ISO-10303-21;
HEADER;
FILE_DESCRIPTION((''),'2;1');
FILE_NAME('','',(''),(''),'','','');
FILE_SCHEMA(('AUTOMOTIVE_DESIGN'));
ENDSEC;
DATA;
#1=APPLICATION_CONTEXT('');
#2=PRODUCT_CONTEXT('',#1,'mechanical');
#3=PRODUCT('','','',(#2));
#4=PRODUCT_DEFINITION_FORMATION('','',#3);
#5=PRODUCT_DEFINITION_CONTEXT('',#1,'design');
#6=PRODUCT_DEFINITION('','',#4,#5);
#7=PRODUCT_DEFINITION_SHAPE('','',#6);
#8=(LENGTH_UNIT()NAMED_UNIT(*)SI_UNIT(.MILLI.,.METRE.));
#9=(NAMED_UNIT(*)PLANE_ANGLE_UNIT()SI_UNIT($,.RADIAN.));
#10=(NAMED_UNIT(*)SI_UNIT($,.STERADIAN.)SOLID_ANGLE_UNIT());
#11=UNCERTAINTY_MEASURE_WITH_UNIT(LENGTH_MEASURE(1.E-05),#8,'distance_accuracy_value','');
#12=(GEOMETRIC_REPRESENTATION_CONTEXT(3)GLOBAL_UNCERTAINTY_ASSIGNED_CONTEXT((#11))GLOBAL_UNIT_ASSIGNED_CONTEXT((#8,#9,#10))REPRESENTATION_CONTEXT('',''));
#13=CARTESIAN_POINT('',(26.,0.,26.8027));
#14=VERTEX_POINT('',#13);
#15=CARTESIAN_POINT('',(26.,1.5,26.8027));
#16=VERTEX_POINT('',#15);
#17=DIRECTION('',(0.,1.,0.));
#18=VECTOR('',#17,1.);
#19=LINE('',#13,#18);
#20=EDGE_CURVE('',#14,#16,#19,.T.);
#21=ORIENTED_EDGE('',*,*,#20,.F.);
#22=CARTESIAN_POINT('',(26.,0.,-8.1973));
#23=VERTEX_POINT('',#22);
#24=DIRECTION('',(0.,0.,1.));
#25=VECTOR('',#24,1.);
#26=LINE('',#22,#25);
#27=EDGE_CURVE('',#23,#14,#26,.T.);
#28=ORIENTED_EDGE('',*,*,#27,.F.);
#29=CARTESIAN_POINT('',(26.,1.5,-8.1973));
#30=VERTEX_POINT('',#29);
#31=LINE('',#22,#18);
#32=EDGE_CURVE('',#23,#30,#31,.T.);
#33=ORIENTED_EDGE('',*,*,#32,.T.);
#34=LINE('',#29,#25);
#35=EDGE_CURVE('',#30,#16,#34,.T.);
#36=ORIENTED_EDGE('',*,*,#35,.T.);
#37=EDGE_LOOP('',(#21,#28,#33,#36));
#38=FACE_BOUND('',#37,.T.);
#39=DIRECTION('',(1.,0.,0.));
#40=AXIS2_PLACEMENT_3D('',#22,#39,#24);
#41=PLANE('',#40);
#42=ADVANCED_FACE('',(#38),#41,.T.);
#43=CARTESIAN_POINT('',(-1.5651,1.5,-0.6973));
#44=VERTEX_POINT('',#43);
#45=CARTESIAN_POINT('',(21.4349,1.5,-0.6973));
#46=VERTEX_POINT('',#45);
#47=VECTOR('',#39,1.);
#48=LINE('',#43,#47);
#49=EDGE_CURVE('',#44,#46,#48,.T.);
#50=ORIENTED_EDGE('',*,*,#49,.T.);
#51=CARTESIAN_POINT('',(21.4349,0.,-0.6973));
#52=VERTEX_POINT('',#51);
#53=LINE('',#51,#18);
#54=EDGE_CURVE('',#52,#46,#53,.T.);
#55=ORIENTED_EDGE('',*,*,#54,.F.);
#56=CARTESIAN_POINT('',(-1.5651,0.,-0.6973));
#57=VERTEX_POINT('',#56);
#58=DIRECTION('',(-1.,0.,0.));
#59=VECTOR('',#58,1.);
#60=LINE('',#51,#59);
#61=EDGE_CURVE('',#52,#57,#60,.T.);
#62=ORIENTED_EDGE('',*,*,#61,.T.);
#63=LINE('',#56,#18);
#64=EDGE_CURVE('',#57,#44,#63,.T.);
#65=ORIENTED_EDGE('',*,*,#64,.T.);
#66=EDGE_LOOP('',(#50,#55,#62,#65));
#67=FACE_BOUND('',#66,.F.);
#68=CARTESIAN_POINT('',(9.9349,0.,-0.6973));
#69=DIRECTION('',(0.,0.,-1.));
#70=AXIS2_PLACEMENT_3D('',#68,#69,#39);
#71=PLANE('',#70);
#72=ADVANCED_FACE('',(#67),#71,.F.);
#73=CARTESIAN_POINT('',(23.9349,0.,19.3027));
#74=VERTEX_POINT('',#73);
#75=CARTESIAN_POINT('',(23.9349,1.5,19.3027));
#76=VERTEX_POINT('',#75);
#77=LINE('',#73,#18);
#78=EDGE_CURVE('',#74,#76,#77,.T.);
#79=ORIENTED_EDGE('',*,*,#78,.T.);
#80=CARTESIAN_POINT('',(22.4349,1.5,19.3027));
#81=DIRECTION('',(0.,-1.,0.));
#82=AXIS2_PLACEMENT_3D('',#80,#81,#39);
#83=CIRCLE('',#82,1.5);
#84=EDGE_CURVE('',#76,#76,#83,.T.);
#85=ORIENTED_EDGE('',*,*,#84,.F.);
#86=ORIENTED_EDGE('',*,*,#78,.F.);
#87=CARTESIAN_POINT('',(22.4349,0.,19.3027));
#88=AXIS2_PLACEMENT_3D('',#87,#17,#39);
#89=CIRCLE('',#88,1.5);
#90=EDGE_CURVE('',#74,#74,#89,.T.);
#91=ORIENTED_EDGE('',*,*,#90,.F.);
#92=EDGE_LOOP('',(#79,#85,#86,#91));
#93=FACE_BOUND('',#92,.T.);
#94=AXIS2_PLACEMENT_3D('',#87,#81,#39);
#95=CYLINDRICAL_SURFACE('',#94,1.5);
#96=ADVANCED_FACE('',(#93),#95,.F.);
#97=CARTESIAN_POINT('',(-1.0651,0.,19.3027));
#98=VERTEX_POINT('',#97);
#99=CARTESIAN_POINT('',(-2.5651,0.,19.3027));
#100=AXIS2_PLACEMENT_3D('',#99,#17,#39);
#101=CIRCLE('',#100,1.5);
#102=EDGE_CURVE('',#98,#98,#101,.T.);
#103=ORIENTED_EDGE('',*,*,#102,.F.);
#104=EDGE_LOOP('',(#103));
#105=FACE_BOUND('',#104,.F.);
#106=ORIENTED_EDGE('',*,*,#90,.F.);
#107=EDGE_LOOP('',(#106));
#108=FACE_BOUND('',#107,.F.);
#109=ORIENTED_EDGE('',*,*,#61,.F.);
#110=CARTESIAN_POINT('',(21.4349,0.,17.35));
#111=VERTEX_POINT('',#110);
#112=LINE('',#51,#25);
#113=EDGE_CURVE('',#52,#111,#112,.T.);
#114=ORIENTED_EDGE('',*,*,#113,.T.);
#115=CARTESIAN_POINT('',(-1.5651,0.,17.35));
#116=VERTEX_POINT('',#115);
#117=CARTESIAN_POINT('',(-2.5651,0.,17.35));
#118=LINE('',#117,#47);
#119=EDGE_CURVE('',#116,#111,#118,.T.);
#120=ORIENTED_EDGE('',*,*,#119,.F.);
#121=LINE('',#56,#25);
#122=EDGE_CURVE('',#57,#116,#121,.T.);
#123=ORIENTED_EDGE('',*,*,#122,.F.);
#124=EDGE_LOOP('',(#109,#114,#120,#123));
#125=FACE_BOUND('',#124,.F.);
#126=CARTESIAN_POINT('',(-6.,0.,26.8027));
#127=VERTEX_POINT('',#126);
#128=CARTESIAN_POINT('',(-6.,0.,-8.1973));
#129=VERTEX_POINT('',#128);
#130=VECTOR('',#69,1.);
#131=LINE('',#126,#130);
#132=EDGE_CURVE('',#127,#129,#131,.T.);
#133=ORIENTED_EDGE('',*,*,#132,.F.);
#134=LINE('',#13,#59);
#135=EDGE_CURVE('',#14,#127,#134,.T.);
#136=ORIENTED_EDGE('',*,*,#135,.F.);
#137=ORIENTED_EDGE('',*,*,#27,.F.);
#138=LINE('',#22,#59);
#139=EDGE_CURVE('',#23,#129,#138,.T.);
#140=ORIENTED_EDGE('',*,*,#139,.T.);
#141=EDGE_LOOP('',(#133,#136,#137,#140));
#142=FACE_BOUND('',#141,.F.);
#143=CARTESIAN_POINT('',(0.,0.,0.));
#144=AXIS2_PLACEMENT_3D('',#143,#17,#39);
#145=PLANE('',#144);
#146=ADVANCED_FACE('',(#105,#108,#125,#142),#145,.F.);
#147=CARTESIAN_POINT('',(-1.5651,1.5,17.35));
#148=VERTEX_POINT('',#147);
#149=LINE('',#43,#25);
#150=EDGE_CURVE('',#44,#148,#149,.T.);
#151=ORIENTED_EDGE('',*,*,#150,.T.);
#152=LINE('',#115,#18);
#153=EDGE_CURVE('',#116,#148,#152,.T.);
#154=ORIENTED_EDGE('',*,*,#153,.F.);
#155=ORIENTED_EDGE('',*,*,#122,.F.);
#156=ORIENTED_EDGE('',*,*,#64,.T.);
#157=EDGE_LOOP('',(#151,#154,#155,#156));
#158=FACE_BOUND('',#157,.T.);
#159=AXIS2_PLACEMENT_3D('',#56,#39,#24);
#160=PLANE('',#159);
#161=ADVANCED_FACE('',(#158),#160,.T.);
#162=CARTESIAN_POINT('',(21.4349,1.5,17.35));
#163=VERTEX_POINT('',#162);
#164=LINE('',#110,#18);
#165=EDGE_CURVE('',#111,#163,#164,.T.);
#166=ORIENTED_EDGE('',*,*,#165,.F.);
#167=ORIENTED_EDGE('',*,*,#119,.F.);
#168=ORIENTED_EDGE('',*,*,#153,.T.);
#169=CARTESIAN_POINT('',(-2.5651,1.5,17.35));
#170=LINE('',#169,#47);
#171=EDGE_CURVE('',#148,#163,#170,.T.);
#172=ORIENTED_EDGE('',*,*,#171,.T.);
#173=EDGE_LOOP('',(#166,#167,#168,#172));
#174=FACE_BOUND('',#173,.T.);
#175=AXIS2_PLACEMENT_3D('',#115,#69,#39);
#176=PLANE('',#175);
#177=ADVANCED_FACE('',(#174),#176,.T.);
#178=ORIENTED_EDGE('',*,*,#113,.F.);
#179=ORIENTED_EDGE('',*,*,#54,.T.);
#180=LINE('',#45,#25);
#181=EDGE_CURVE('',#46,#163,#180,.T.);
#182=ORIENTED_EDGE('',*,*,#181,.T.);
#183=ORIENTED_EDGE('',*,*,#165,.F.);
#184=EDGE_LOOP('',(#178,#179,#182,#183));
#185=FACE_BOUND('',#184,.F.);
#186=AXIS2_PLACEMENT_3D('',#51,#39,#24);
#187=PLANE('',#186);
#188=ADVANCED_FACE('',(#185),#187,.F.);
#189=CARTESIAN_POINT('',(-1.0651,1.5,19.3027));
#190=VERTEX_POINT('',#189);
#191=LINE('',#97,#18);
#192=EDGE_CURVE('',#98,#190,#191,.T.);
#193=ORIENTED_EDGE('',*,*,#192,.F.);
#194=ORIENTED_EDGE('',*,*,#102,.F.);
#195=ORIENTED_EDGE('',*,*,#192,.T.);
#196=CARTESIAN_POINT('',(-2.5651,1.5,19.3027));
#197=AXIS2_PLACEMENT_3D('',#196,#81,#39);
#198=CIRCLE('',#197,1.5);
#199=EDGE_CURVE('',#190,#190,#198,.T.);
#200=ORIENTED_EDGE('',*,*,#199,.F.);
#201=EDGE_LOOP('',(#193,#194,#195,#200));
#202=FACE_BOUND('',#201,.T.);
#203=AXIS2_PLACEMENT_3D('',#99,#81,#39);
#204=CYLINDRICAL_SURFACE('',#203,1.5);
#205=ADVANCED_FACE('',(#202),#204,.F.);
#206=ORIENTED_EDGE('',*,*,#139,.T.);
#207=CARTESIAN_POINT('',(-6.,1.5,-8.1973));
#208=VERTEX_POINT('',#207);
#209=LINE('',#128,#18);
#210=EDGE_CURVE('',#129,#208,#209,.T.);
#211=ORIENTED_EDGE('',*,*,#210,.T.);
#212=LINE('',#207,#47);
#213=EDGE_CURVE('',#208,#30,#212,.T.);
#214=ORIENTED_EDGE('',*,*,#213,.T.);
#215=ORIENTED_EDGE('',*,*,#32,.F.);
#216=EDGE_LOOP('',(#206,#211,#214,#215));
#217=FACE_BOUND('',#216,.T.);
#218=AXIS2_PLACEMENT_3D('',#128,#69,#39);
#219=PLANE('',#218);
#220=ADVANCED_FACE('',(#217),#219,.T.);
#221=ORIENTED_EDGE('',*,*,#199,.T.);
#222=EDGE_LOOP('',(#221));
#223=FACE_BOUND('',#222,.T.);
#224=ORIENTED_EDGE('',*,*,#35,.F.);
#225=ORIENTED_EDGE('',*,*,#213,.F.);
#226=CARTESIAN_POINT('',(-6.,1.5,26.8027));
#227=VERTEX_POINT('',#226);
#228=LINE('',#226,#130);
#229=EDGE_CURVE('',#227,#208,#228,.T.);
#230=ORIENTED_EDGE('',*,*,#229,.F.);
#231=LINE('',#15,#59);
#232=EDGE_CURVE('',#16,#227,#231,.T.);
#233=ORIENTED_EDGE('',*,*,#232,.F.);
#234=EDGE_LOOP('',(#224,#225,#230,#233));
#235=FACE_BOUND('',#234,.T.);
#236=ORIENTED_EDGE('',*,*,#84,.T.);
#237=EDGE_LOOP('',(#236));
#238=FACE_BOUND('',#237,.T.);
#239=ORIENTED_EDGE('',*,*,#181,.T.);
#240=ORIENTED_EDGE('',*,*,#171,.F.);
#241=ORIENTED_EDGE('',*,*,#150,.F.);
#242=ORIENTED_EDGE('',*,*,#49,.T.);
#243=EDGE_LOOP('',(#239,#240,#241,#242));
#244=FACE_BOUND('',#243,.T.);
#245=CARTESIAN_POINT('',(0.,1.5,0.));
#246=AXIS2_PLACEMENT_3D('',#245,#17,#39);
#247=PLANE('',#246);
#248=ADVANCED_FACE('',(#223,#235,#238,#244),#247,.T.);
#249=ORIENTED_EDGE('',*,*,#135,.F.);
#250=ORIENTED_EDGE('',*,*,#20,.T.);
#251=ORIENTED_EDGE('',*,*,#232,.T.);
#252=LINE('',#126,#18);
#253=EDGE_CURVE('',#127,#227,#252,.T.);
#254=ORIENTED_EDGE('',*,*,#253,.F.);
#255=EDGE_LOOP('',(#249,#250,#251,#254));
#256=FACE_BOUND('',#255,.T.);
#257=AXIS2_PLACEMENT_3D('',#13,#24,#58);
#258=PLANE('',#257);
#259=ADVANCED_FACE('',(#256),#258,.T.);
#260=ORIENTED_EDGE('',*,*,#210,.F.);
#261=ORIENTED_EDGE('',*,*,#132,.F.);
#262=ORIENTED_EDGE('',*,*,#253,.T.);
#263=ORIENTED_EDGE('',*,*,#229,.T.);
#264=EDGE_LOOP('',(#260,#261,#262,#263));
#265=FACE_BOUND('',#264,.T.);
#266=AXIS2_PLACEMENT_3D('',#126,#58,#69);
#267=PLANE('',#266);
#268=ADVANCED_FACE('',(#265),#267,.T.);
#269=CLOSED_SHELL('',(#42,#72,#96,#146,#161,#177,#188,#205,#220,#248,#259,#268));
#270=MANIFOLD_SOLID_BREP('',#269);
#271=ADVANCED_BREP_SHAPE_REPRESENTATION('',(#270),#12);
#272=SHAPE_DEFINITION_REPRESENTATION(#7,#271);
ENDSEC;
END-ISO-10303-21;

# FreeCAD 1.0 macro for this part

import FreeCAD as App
import Part
import Sketcher

V = App.Vector

doc = App.newDocument("Part")
params = doc.addObject("Spreadsheet::Sheet", "Params")
for row, (alias, value) in enumerate([
    ("sketch1_diameter", "3 mm"),
    ("sketch1_width", "32 mm"),
    ("sketch1_height", "35 mm"),
    ("sketch1_width2", "23 mm"),
    ("pad1_length", "1.5 mm"),
], start=1):
    params.set(f"A{row}", alias)
    params.set(f"B{row}", "=" + value)
    params.setAlias(f"B{row}", alias)

body = doc.addObject("PartDesign::Body", "Body")

# Sketch on XZ plane
sketch1 = body.newObject("Sketcher::SketchObject", "Sketch")
sketch1.AttachmentSupport = (doc.getObject("XZ_Plane"), [""])
sketch1.MapMode = "FlatFace"
sketch1.addGeometry([
    Part.LineSegment(V(-6, -8.2, 0), V(-6, 26.8, 0)),  # 0
    Part.LineSegment(V(-6, 26.8, 0), V(26, 26.8, 0)),  # 1
    Part.LineSegment(V(26, 26.8, 0), V(26, -8.2, 0)),  # 2
    Part.LineSegment(V(26, -8.2, 0), V(-6, -8.2, 0)),  # 3
    Part.Circle(V(-2.6, 19.3, 0), V(0, 0, 1), 1.5),  # 4
    Part.Circle(V(22.4, 19.3, 0), V(0, 0, 1), 1.5),  # 5
    Part.LineSegment(V(21.4, -0.7, 0), V(21.4, 17.4, 0)),  # 6
    Part.LineSegment(V(21.4, 17.4, 0), V(-1.6, 17.4, 0)),  # 7
    Part.LineSegment(V(-1.6, 17.4, 0), V(-1.6, -0.7, 0)),  # 8
    Part.LineSegment(V(-1.6, -0.7, 0), V(21.4, -0.7, 0)),  # 9
], False)
sketch1.addConstraint([
    Sketcher.Constraint("Coincident", 0, 2, 1, 1),
    Sketcher.Constraint("Coincident", 1, 2, 2, 1),
    Sketcher.Constraint("Coincident", 2, 2, 3, 1),
    Sketcher.Constraint("Coincident", 3, 2, 0, 1),
    Sketcher.Constraint("Coincident", 6, 2, 7, 1),
    Sketcher.Constraint("Coincident", 7, 2, 8, 1),
    Sketcher.Constraint("Coincident", 8, 2, 9, 1),
    Sketcher.Constraint("Coincident", 9, 2, 6, 1),
    Sketcher.Constraint("Vertical", 0),
    Sketcher.Constraint("Horizontal", 1),
    Sketcher.Constraint("Vertical", 2),
    Sketcher.Constraint("Horizontal", 3),
    Sketcher.Constraint("Vertical", 6),
    Sketcher.Constraint("Horizontal", 7),
    Sketcher.Constraint("Vertical", 8),
    Sketcher.Constraint("Horizontal", 9),
    Sketcher.Constraint("Equal", 4, 5),
    Sketcher.Constraint("Horizontal", 4, 3, 5, 3),
    Sketcher.Constraint("Diameter", 4, 3.0),
    Sketcher.Constraint("DistanceX", 1, 1, 1, 2, 32.0),
    Sketcher.Constraint("DistanceY", 0, 1, 0, 2, 35.0),
    Sketcher.Constraint("DistanceX", 4, 3, 5, 3, 25.0),
    Sketcher.Constraint("DistanceY", 2, 2, 5, 3, 27.5),
    Sketcher.Constraint("DistanceY", 8, 2, 0, 2, 27.5),
    Sketcher.Constraint("DistanceX", 7, 2, 7, 1, 23.0),
    Sketcher.Constraint("DistanceX", 0, 2, -1, 1, 6.0),
    Sketcher.Constraint("DistanceX", 6, 2, 5, 3, 1.0),
    Sketcher.Constraint("DistanceY", -1, 1, 6, 2, 17.35),
    Sketcher.Constraint("DistanceY", 6, 1, 6, 2, 18.0473),
    Sketcher.Constraint("DistanceX", 4, 3, -1, 1, 2.565),
])
sketch1.setExpression("Constraints[18]", "Params.sketch1_diameter")
sketch1.setExpression("Constraints[19]", "Params.sketch1_width")
sketch1.setExpression("Constraints[20]", "Params.sketch1_height")
sketch1.setExpression("Constraints[24]", "Params.sketch1_width2")
pad1 = body.newObject("PartDesign::Pad", "Pad")
pad1.Profile = sketch1
pad1.setExpression("Length", "Params.pad1_length")
pad1.Reversed = True

doc.recompute()
